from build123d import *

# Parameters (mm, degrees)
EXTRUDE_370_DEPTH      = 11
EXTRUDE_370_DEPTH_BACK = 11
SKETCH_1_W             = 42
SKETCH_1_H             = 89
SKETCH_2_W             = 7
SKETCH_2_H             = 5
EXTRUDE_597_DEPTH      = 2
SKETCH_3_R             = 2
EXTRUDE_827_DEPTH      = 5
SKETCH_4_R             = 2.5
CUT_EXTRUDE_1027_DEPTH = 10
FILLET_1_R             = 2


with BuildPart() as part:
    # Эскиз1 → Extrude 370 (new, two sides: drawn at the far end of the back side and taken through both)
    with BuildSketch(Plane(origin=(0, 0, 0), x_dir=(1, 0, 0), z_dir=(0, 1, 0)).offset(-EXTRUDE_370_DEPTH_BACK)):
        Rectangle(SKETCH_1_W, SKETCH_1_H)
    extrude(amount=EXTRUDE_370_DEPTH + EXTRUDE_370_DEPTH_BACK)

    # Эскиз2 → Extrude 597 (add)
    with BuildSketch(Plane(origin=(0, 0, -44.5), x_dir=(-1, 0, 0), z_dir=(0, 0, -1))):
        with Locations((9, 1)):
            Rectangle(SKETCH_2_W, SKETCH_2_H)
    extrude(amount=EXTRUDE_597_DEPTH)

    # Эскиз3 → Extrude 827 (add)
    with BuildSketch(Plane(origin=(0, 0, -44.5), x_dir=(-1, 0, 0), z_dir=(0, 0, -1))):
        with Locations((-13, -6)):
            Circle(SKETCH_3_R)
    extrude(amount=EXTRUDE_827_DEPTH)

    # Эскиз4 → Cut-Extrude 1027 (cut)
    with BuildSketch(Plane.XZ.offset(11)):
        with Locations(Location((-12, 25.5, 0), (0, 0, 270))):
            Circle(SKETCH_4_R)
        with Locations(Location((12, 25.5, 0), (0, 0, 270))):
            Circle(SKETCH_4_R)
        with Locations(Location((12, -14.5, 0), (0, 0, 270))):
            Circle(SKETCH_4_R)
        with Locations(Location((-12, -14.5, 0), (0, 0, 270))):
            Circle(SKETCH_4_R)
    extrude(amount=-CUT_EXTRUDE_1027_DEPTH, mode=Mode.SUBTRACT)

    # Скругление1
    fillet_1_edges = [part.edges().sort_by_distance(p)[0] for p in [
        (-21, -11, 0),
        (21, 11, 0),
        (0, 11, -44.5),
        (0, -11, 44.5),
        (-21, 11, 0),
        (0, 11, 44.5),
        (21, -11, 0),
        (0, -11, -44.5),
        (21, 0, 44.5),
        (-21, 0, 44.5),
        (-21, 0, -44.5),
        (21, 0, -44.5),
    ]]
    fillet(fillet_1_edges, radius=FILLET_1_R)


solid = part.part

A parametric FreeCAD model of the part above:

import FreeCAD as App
import Part
import Sketcher

V = App.Vector
Q = App.Units.Quantity


def edges_at(feature, points):
    """Names of the edges that pass closest to the given points."""
    edges = feature.Shape.Edges
    near = lambda p: min(range(len(edges)), key=lambda i: edges[i].distToShape(Part.Vertex(*p))[0])
    return sorted({f"Edge{near(p) + 1}" for p in points})


def add_polygon(sketch, points):
    """Adds a closed chain of lines whose ends are joined by coincident constraints."""
    first, n = sketch.GeometryCount, len(points)
    for a, b in zip(points, points[1:] + points[:1]):
        sketch.addGeometry(Part.LineSegment(App.Vector(*a, 0), App.Vector(*b, 0)), False)
    for i in range(n):
        sketch.addConstraint(Sketcher.Constraint("Coincident", first + i, 2, first + (i + 1) % n, 1))

doc = App.newDocument("Part")
params = doc.addObject("Spreadsheet::Sheet", "Params")
for row, (alias, value) in enumerate([
    ("sketch1_width", "42 mm"),
    ("sketch1_height", "89 mm"),
    ("pad1_length", "11 mm"),
    ("pad1_length2", "11 mm"),
    ("sketch2_width", "7 mm"),
    ("sketch2_height", "5 mm"),
    ("pad2_length", "2 mm"),
    ("sketch3_diameter", "4 mm"),
    ("pad3_length", "5 mm"),
    ("sketch4_diameter", "5 mm"),
    ("pocket1_length", "10 mm"),
    ("fillet_radius", "2 mm"),
], start=1):
    params.set(f"A{row}", alias)
    params.set(f"B{row}", "=" + value)
    params.setAlias(f"B{row}", alias)

body = doc.addObject("PartDesign::Body", "Body")

# Sketch on XZ plane
sketch1 = body.newObject("Sketcher::SketchObject", "Sketch")
sketch1.AttachmentSupport = (doc.getObject("XZ_Plane"), [""])
sketch1.MapMode = "FlatFace"
add_polygon(sketch1, [(-21, -44), (-21, 44), (21, 44), (21, -44)])  # lines 0-3
sketch1.addConstraint(Sketcher.Constraint("Vertical", 0))
sketch1.addConstraint(Sketcher.Constraint("Horizontal", 1))
sketch1.addConstraint(Sketcher.Constraint("Vertical", 2))
sketch1.addConstraint(Sketcher.Constraint("Horizontal", 3))
sketch1.addConstraint(Sketcher.Constraint("Symmetric", 0, 2, 2, 2, -1, 1))
sketch1.addConstraint(Sketcher.Constraint("DistanceX", 1, 1, 1, 2, Q("42 mm")))
sketch1.addConstraint(Sketcher.Constraint("DistanceY", 0, 1, 0, 2, Q("89 mm")))
sketch1.setExpression("Constraints[9]", "Params.sketch1_width")
sketch1.setExpression("Constraints[10]", "Params.sketch1_height")
pad1 = body.newObject("PartDesign::Pad", "Pad")
pad1.Profile = sketch1
pad1.Type = "TwoLengths"
pad1.setExpression("Length", "Params.pad1_length")
pad1.setExpression("Length2", "Params.pad1_length2")
pad1.Reversed = True

# Sketch on XY plane
sketch2 = body.newObject("Sketcher::SketchObject", "Sketch001")
sketch2.AttachmentSupport = (doc.getObject("XY_Plane"), [""])
sketch2.MapMode = "FlatFace"
sketch2.AttachmentOffset = App.Placement(V(0, 0, -44.5), App.Rotation())
add_polygon(sketch2, [(-6, 4), (-6, -2), (-12, -2), (-12, 4)])  # lines 0-3
sketch2.addConstraint(Sketcher.Constraint("Vertical", 0))
sketch2.addConstraint(Sketcher.Constraint("Horizontal", 1))
sketch2.addConstraint(Sketcher.Constraint("Vertical", 2))
sketch2.addConstraint(Sketcher.Constraint("Horizontal", 3))
sketch2.addConstraint(Sketcher.Constraint("DistanceX", 1, 2, 1, 1, Q("7 mm")))
sketch2.addConstraint(Sketcher.Constraint("DistanceY", 0, 2, 0, 1, Q("5 mm")))
sketch2.addConstraint(Sketcher.Constraint("DistanceX", 0, 2, -1, 1, Q("5.5 mm")))
sketch2.addConstraint(Sketcher.Constraint("DistanceY", 0, 2, -1, 1, Q("1.5 mm")))
sketch2.setExpression("Constraints[8]", "Params.sketch2_width")
sketch2.setExpression("Constraints[9]", "Params.sketch2_height")
pad2 = body.newObject("PartDesign::Pad", "Pad001")
pad2.Profile = sketch2
pad2.setExpression("Length", "Params.pad2_length")
pad2.Reversed = True

# Sketch on XY plane
sketch3 = body.newObject("Sketcher::SketchObject", "Sketch002")
sketch3.AttachmentSupport = (doc.getObject("XY_Plane"), [""])
sketch3.MapMode = "FlatFace"
sketch3.AttachmentOffset = App.Placement(V(0, 0, -44.5), App.Rotation())
sketch3.addGeometry(Part.Circle(V(13, -6, 0), V(0, 0, 1), 2), False)
sketch3.addConstraint(Sketcher.Constraint("Diameter", 0, Q("4 mm")))
sketch3.addConstraint(Sketcher.Constraint("DistanceX", -1, 1, 0, 3, Q("13 mm")))
sketch3.addConstraint(Sketcher.Constraint("DistanceY", 0, 3, -1, 1, Q("6 mm")))
sketch3.setExpression("Constraints[0]", "Params.sketch3_diameter")
pad3 = body.newObject("PartDesign::Pad", "Pad002")
pad3.Profile = sketch3
pad3.setExpression("Length", "Params.pad3_length")
pad3.Reversed = True

# Sketch on XZ plane
sketch4 = body.newObject("Sketcher::SketchObject", "Sketch003")
sketch4.AttachmentSupport = (doc.getObject("XZ_Plane"), [""])
sketch4.MapMode = "FlatFace"
sketch4.AttachmentOffset = App.Placement(V(0, 0, 11), App.Rotation())
sketch4.addGeometry(Part.Circle(V(-12, 25.5, 0), V(0, 0, 1), 2.5), False)
sketch4.addGeometry(Part.Circle(V(12, 25.5, 0), V(0, 0, 1), 2.5), False)
sketch4.addGeometry(Part.Circle(V(12, -14.5, 0), V(0, 0, 1), 2.5), False)
sketch4.addGeometry(Part.Circle(V(-12, -14.5, 0), V(0, 0, 1), 2.5), False)
sketch4.addConstraint(Sketcher.Constraint("Equal", 0, 1))
sketch4.addConstraint(Sketcher.Constraint("Equal", 1, 2))
sketch4.addConstraint(Sketcher.Constraint("Equal", 2, 3))
sketch4.addConstraint(Sketcher.Constraint("Symmetric", 0, 3, 1, 3, -2))
sketch4.addConstraint(Sketcher.Constraint("Symmetric", 2, 3, 3, 3, -2))
sketch4.addConstraint(Sketcher.Constraint("Vertical", 1, 3, 2, 3))
sketch4.addConstraint(Sketcher.Constraint("Diameter", 0, Q("5 mm")))
sketch4.addConstraint(Sketcher.Constraint("DistanceX", 0, 3, -1, 1, Q("12 mm")))
sketch4.addConstraint(Sketcher.Constraint("DistanceY", 2, 3, 1, 3, Q("40 mm")))
sketch4.addConstraint(Sketcher.Constraint("DistanceY", -1, 1, 0, 3, Q("25.5 mm")))
sketch4.setExpression("Constraints[6]", "Params.sketch4_diameter")
pocket1 = body.newObject("PartDesign::Pocket", "Pocket")
pocket1.Profile = sketch4
pocket1.setExpression("Length", "Params.pocket1_length")
doc.recompute()

fillet = body.newObject("PartDesign::Fillet", "Fillet")
fillet.Base = (pocket1, edges_at(pocket1, [
    (-21, -11, 0),
    (21, 11, 0),
    (0, 11, -44.5),
    (0, -11, 44.5),
    (-21, 11, 0),
    (0, 11, 44.5),
    (21, -11, 0),
    (0, -11, -44.5),
    (21, 0, 44.5),
    (-21, 0, 44.5),
    (-21, 0, -44.5),
    (21, 0, -44.5),
]))
fillet.setExpression("Radius", "Params.fillet_radius")

doc.recompute()
